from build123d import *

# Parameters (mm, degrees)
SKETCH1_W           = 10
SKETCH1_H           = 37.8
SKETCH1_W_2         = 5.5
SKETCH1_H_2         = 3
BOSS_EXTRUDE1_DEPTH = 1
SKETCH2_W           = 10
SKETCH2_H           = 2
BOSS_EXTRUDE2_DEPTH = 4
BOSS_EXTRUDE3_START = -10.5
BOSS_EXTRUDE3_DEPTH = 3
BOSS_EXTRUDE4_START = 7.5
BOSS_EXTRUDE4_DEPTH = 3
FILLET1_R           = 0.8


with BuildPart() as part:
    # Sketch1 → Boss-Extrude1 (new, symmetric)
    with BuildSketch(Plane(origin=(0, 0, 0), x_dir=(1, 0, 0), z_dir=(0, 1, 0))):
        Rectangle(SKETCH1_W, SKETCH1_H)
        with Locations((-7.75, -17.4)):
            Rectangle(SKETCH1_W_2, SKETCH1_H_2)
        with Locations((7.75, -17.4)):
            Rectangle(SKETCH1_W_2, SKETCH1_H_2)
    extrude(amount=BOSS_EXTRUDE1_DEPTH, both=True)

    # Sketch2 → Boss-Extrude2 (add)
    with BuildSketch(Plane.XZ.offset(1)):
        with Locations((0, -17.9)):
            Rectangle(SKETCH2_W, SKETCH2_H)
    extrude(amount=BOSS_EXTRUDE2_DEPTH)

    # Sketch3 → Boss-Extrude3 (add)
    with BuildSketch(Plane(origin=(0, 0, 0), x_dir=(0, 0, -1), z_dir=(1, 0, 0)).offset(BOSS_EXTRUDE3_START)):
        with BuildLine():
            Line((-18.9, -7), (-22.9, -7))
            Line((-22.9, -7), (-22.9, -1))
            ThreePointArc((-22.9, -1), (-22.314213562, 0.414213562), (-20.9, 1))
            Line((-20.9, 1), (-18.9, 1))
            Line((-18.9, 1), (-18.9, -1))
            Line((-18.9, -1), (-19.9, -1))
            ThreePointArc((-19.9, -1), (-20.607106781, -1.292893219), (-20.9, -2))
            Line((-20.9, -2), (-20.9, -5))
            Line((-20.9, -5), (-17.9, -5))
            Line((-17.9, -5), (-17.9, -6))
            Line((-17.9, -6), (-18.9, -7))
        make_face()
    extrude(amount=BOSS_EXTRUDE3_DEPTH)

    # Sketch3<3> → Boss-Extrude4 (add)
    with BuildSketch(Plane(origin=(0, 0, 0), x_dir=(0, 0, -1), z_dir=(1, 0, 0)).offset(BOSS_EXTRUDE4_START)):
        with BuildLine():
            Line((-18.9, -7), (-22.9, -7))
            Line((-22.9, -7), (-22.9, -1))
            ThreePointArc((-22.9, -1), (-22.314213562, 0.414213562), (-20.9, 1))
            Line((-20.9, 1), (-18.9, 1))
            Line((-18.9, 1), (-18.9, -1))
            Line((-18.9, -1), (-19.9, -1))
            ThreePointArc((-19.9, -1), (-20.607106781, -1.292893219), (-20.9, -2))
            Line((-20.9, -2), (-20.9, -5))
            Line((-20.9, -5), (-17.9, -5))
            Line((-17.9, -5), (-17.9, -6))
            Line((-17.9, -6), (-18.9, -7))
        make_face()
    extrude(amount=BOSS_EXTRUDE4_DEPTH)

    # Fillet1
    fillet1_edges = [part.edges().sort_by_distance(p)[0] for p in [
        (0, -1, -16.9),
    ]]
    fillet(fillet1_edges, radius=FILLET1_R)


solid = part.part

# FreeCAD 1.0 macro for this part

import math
import FreeCAD as App
import Part
import Sketcher


def edges_at(feature, points):
    """Names of the edges that pass closest to the given points."""
    edges = feature.Shape.Edges
    near = lambda p: min(range(len(edges)), key=lambda i: edges[i].distToShape(Part.Vertex(*p))[0])
    return sorted({f"Edge{near(p) + 1}" for p in points})


def add_polygon(sketch, points):
    """Adds a closed chain of lines whose ends are joined by coincident constraints."""
    first, n = sketch.GeometryCount, len(points)
    for a, b in zip(points, points[1:] + points[:1]):
        sketch.addGeometry(Part.LineSegment(App.Vector(*a, 0), App.Vector(*b, 0)), False)
    for i in range(n):
        sketch.addConstraint(Sketcher.Constraint("Coincident", first + i, 2, first + (i + 1) % n, 1))

doc = App.newDocument("Part")
body = doc.addObject("PartDesign::Body", "Body")

# Sketch on XZ plane
sketch1 = body.newObject("Sketcher::SketchObject", "Sketch")
sketch1.AttachmentSupport = (doc.getObject("XZ_Plane"), [""])
sketch1.MapMode = "FlatFace"
add_polygon(sketch1, [(-5, -18.9), (-5, 15.9), (-10.5, 15.9), (-10.5, 18.9), (10.5, 18.9), (10.5, 15.9), (5, 15.9), (5, -18.9)])  # lines 0-7
sketch1.addConstraint([
    Sketcher.Constraint("Vertical", 0),
    Sketcher.Constraint("Horizontal", 1),
    Sketcher.Constraint("Vertical", 2),
    Sketcher.Constraint("Horizontal", 3),
    Sketcher.Constraint("Vertical", 4),
    Sketcher.Constraint("Horizontal", 5),
    Sketcher.Constraint("Vertical", 6),
    Sketcher.Constraint("Horizontal", 7),
    Sketcher.Constraint("Symmetric", 1, 2, 4, 2, -2),
    Sketcher.Constraint("Equal", 1, 5),
    Sketcher.Constraint("DistanceX", 3, 1, 3, 2, 21.0),
    Sketcher.Constraint("DistanceX", 7, 2, 7, 1, 10.0),
    Sketcher.Constraint("DistanceY", 2, 1, 2, 2, 3.0),
    Sketcher.Constraint("DistanceY", 0, 1, 0, 2, 34.8),
    Sketcher.Constraint("DistanceY", -1, 1, 0, 2, 15.9),
])
pad1 = body.newObject("PartDesign::Pad", "Pad")
pad1.Profile = sketch1
pad1.Length = 2
pad1.Midplane = True

# Sketch on XZ plane
sketch2 = body.newObject("Sketcher::SketchObject", "Sketch001")
sketch2.AttachmentSupport = (doc.getObject("XZ_Plane"), [""])
sketch2.MapMode = "FlatFace"
sketch2.AttachmentOffset = App.Placement(App.Vector(0, 0, 1), App.Rotation())
add_polygon(sketch2, [(-5, -16.9), (-5, -18.9), (5, -18.9), (5, -16.9)])  # lines 0-3
sketch2.addConstraint([
    Sketcher.Constraint("Vertical", 0),
    Sketcher.Constraint("Horizontal", 1),
    Sketcher.Constraint("Vertical", 2),
    Sketcher.Constraint("Horizontal", 3),
    Sketcher.Constraint("DistanceX", 1, 1, 1, 2, 10.0),
    Sketcher.Constraint("DistanceY", 0, 2, 0, 1, 2.0),
    Sketcher.Constraint("DistanceX", 0, 2, -1, 1, 5.0),
    Sketcher.Constraint("DistanceY", 0, 2, -1, 1, 18.9),
])
pad2 = body.newObject("PartDesign::Pad", "Pad001")
pad2.Profile = sketch2
pad2.Length = 4

# Sketch on YZ plane
sketch3 = body.newObject("Sketcher::SketchObject", "Sketch002")
sketch3.AttachmentSupport = (doc.getObject("YZ_Plane"), [""])
sketch3.MapMode = "FlatFace"
sketch3.AttachmentOffset = App.Placement(App.Vector(0, 0, -10.5), App.Rotation())
sketch3.addGeometry([
    Part.LineSegment(App.Vector(-7, 22.9, 0), App.Vector(-7, 18.9, 0)),  # 0
    Part.LineSegment(App.Vector(-7, 18.9, 0), App.Vector(-6, 17.9, 0)),  # 1
    Part.LineSegment(App.Vector(-6, 17.9, 0), App.Vector(-5, 17.9, 0)),  # 2
    Part.LineSegment(App.Vector(-5, 17.9, 0), App.Vector(-5, 20.9, 0)),  # 3
    Part.LineSegment(App.Vector(-5, 20.9, 0), App.Vector(-2, 20.9, 0)),  # 4
    Part.ArcOfCircle(Part.Circle(App.Vector(-2, 19.9, 0), App.Vector(0, 0, 1), 1), math.radians(0), math.radians(90)),  # 5
    Part.LineSegment(App.Vector(-1, 19.9, 0), App.Vector(-1, 18.9, 0)),  # 6
    Part.LineSegment(App.Vector(-1, 18.9, 0), App.Vector(1, 18.9, 0)),  # 7
    Part.LineSegment(App.Vector(1, 18.9, 0), App.Vector(1, 20.9, 0)),  # 8
    Part.ArcOfCircle(Part.Circle(App.Vector(-1, 20.9, 0), App.Vector(0, 0, 1), 2), math.radians(0), math.radians(90)),  # 9
    Part.LineSegment(App.Vector(-1, 22.9, 0), App.Vector(-7, 22.9, 0)),  # 10
], False)
sketch3.addConstraint([
    Sketcher.Constraint("Coincident", 0, 2, 1, 1),
    Sketcher.Constraint("Coincident", 1, 2, 2, 1),
    Sketcher.Constraint("Coincident", 2, 2, 3, 1),
    Sketcher.Constraint("Coincident", 3, 2, 4, 1),
    Sketcher.Constraint("Tangent", 4, 2, 5, 2),
    Sketcher.Constraint("Tangent", 5, 1, 6, 1),
    Sketcher.Constraint("Coincident", 6, 2, 7, 1),
    Sketcher.Constraint("Coincident", 7, 2, 8, 1),
    Sketcher.Constraint("Tangent", 8, 2, 9, 1),
    Sketcher.Constraint("Tangent", 9, 2, 10, 1),
    Sketcher.Constraint("Coincident", 10, 2, 0, 1),
    Sketcher.Constraint("Vertical", 0),
    Sketcher.Constraint("Horizontal", 2),
    Sketcher.Constraint("Vertical", 3),
    Sketcher.Constraint("Horizontal", 4),
    Sketcher.Constraint("Vertical", 6),
    Sketcher.Constraint("Horizontal", 7),
    Sketcher.Constraint("Vertical", 8),
    Sketcher.Constraint("Horizontal", 10),
    Sketcher.Constraint("Horizontal", 9, 3, 3, 2),
    Sketcher.Constraint("Horizontal", 0, 2, 6, 2),
    Sketcher.Constraint("Vertical", 9, 3, 5, 1),
    Sketcher.Constraint("Equal", 4, 3),
    Sketcher.Constraint("Equal", 2, 6),
    Sketcher.Constraint("Equal", 7, 8),
    Sketcher.Constraint("Radius", 5, 1.0),
    Sketcher.Constraint("Radius", 9, 2.0),
    Sketcher.Constraint("DistanceX", 4, 1, 4, 2, 3.0),
    Sketcher.Constraint("DistanceX", 10, 2, 10, 1, 6.0),
    Sketcher.Constraint("DistanceX", 5, 3, -1, 1, 2.0),
    Sketcher.Constraint("DistanceY", -1, 1, 5, 3, 19.9),
])
pad3 = body.newObject("PartDesign::Pad", "Pad002")
pad3.Profile = sketch3
pad3.Length = 3

# Sketch on YZ plane
sketch4 = body.newObject("Sketcher::SketchObject", "Sketch003")
sketch4.AttachmentSupport = (doc.getObject("YZ_Plane"), [""])
sketch4.MapMode = "FlatFace"
sketch4.AttachmentOffset = App.Placement(App.Vector(0, 0, 7.5), App.Rotation())
sketch4.addGeometry([
    Part.LineSegment(App.Vector(-7, 22.9, 0), App.Vector(-7, 18.9, 0)),  # 0
    Part.LineSegment(App.Vector(-7, 18.9, 0), App.Vector(-6, 17.9, 0)),  # 1
    Part.LineSegment(App.Vector(-6, 17.9, 0), App.Vector(-5, 17.9, 0)),  # 2
    Part.LineSegment(App.Vector(-5, 17.9, 0), App.Vector(-5, 20.9, 0)),  # 3
    Part.LineSegment(App.Vector(-5, 20.9, 0), App.Vector(-2, 20.9, 0)),  # 4
    Part.ArcOfCircle(Part.Circle(App.Vector(-2, 19.9, 0), App.Vector(0, 0, 1), 1), math.radians(0), math.radians(90)),  # 5
    Part.LineSegment(App.Vector(-1, 19.9, 0), App.Vector(-1, 18.9, 0)),  # 6
    Part.LineSegment(App.Vector(-1, 18.9, 0), App.Vector(1, 18.9, 0)),  # 7
    Part.LineSegment(App.Vector(1, 18.9, 0), App.Vector(1, 20.9, 0)),  # 8
    Part.ArcOfCircle(Part.Circle(App.Vector(-1, 20.9, 0), App.Vector(0, 0, 1), 2), math.radians(0), math.radians(90)),  # 9
    Part.LineSegment(App.Vector(-1, 22.9, 0), App.Vector(-7, 22.9, 0)),  # 10
], False)
sketch4.addConstraint([
    Sketcher.Constraint("Coincident", 0, 2, 1, 1),
    Sketcher.Constraint("Coincident", 1, 2, 2, 1),
    Sketcher.Constraint("Coincident", 2, 2, 3, 1),
    Sketcher.Constraint("Coincident", 3, 2, 4, 1),
    Sketcher.Constraint("Tangent", 4, 2, 5, 2),
    Sketcher.Constraint("Tangent", 5, 1, 6, 1),
    Sketcher.Constraint("Coincident", 6, 2, 7, 1),
    Sketcher.Constraint("Coincident", 7, 2, 8, 1),
    Sketcher.Constraint("Tangent", 8, 2, 9, 1),
    Sketcher.Constraint("Tangent", 9, 2, 10, 1),
    Sketcher.Constraint("Coincident", 10, 2, 0, 1),
    Sketcher.Constraint("Vertical", 0),
    Sketcher.Constraint("Horizontal", 2),
    Sketcher.Constraint("Vertical", 3),
    Sketcher.Constraint("Horizontal", 4),
    Sketcher.Constraint("Vertical", 6),
    Sketcher.Constraint("Horizontal", 7),
    Sketcher.Constraint("Vertical", 8),
    Sketcher.Constraint("Horizontal", 10),
    Sketcher.Constraint("Horizontal", 9, 3, 3, 2),
    Sketcher.Constraint("Horizontal", 0, 2, 6, 2),
    Sketcher.Constraint("Vertical", 9, 3, 5, 1),
    Sketcher.Constraint("Equal", 4, 3),
    Sketcher.Constraint("Equal", 2, 6),
    Sketcher.Constraint("Equal", 7, 8),
    Sketcher.Constraint("Radius", 5, 1.0),
    Sketcher.Constraint("Radius", 9, 2.0),
    Sketcher.Constraint("DistanceX", 4, 1, 4, 2, 3.0),
    Sketcher.Constraint("DistanceX", 10, 2, 10, 1, 6.0),
    Sketcher.Constraint("DistanceX", 5, 3, -1, 1, 2.0),
    Sketcher.Constraint("DistanceY", -1, 1, 5, 3, 19.9),
])
pad4 = body.newObject("PartDesign::Pad", "Pad003")
pad4.Profile = sketch4
pad4.Length = 3
doc.recompute()

fillet = body.newObject("PartDesign::Fillet", "Fillet")
fillet.Base = (pad4, edges_at(pad4, [(0, -1, -16.9)]))
fillet.Radius = 0.8

doc.recompute()
